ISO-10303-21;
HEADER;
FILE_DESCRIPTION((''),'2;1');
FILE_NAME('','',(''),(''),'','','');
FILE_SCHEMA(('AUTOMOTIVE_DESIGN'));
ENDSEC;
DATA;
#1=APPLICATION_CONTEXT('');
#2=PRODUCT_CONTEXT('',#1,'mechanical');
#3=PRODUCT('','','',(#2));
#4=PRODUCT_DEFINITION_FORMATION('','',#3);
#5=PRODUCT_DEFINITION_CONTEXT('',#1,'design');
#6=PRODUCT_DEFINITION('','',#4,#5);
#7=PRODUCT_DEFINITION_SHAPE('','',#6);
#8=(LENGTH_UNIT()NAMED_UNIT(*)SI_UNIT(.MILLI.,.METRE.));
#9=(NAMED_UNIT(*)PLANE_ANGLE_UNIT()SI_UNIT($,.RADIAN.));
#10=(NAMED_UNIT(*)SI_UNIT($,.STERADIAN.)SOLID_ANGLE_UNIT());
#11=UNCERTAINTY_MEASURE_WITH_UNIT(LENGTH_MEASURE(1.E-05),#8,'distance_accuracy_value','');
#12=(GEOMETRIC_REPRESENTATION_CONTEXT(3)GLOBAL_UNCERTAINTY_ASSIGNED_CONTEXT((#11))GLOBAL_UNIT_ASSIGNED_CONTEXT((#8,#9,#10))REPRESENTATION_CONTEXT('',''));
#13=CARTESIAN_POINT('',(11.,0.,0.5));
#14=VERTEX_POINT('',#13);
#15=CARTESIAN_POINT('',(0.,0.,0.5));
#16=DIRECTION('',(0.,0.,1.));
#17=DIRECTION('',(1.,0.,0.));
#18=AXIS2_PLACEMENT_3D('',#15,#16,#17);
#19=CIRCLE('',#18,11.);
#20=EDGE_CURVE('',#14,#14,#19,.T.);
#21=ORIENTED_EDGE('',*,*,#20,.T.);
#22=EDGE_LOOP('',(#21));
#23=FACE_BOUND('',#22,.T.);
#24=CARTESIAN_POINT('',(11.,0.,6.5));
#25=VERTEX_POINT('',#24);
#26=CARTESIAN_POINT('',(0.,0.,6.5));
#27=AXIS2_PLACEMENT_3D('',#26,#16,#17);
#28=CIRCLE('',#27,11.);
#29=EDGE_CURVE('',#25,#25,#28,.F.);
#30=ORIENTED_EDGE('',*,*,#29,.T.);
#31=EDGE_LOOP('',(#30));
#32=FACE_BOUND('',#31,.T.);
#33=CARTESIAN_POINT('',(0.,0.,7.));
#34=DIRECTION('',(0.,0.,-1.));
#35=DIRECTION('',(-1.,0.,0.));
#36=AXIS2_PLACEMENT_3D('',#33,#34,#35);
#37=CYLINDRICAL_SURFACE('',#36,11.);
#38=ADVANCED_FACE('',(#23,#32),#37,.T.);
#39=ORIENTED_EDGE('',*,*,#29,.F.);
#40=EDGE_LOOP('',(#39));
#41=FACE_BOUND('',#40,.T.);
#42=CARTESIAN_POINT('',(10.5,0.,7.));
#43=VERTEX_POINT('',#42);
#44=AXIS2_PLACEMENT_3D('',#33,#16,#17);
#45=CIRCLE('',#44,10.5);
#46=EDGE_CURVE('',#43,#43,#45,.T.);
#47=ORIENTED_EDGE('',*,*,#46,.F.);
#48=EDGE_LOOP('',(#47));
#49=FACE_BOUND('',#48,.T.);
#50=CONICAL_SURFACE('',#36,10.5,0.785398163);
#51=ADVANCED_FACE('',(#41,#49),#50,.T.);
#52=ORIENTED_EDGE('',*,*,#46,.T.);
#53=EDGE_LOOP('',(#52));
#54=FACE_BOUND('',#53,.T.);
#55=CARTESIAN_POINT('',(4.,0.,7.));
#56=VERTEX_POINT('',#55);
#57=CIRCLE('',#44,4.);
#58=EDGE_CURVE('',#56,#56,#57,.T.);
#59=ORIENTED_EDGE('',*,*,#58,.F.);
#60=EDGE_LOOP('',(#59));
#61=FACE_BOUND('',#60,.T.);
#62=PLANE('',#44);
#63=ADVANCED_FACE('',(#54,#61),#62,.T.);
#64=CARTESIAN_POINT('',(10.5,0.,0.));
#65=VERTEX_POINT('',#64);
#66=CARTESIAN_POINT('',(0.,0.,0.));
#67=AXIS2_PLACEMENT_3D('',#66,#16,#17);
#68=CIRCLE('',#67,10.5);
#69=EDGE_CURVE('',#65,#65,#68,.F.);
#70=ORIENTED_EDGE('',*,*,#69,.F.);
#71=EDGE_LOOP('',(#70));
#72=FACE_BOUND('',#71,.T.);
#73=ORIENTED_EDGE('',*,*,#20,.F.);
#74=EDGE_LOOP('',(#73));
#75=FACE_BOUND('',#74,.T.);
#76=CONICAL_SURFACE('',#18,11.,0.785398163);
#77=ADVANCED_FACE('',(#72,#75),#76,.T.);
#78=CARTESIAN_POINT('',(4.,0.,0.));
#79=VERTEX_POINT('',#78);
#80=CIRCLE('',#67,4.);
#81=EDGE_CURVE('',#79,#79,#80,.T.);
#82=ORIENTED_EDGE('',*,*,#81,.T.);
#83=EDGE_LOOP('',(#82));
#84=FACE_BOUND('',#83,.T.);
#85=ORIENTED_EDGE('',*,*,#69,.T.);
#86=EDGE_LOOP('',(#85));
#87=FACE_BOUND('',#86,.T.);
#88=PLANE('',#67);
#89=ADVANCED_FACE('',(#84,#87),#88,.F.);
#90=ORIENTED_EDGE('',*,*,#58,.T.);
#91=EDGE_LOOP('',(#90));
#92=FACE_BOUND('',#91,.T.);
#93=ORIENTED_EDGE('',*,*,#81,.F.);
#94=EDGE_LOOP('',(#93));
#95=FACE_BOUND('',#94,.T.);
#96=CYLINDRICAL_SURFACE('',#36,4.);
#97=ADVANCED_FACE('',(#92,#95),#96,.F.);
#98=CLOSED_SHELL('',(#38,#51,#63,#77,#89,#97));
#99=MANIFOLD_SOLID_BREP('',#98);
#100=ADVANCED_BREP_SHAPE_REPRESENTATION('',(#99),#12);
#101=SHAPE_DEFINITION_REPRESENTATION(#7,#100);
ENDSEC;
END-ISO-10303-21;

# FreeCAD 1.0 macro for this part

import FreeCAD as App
import Part
import Sketcher

V = App.Vector
Q = App.Units.Quantity


def edges_at(feature, points):
    """Names of the edges that pass closest to the given points."""
    edges = feature.Shape.Edges
    near = lambda p: min(range(len(edges)), key=lambda i: edges[i].distToShape(Part.Vertex(*p))[0])
    return sorted({f"Edge{near(p) + 1}" for p in points})

doc = App.newDocument("Part")
params = doc.addObject("Spreadsheet::Sheet", "Params")
for row, (alias, value) in enumerate([
    ("sketch1_diameter", "22 mm"),
    ("sketch1_diameter2", "8 mm"),
    ("pad1_length", "7 mm"),
    ("chamfer_size", "0.5 mm"),
], start=1):
    params.set(f"A{row}", alias)
    params.set(f"B{row}", "=" + value)
    params.setAlias(f"B{row}", alias)

body = doc.addObject("PartDesign::Body", "Body")

# Sketch on XY plane
sketch1 = doc.addObject("Sketcher::SketchObject", "Sketch")
body.addObject(sketch1)
sketch1.AttachmentSupport = (doc.XY_Plane, [""])
sketch1.MapMode = "FlatFace"
sketch1.addGeometry([
    Part.Circle(V(0, 0, 0), V(0, 0, 1), 11),
    Part.Circle(V(0, 0, 0), V(0, 0, 1), 4),
], False)
sketch1.addConstraint([
    Sketcher.Constraint("Coincident", 0, 3, -1, 1),
    Sketcher.Constraint("Coincident", 1, 3, -1, 1),
    Sketcher.Constraint("Diameter", 0, Q("22 mm")),
    Sketcher.Constraint("Diameter", 1, Q("8 mm")),
])
sketch1.setExpression("Constraints[2]", "Params.sketch1_diameter")
sketch1.setExpression("Constraints[3]", "Params.sketch1_diameter2")
pad1 = doc.addObject("PartDesign::Pad", "Pad")
body.addObject(pad1)
pad1.Profile = sketch1
pad1.setExpression("Length", "Params.pad1_length")
doc.recompute()

chamfer = doc.addObject("PartDesign::Chamfer", "Chamfer")
body.addObject(chamfer)
chamfer.Base = (pad1, edges_at(pad1, [(-11, 0, 0), (-11, 0, 7)]))
chamfer.setExpression("Size", "Params.chamfer_size")

doc.recompute()
